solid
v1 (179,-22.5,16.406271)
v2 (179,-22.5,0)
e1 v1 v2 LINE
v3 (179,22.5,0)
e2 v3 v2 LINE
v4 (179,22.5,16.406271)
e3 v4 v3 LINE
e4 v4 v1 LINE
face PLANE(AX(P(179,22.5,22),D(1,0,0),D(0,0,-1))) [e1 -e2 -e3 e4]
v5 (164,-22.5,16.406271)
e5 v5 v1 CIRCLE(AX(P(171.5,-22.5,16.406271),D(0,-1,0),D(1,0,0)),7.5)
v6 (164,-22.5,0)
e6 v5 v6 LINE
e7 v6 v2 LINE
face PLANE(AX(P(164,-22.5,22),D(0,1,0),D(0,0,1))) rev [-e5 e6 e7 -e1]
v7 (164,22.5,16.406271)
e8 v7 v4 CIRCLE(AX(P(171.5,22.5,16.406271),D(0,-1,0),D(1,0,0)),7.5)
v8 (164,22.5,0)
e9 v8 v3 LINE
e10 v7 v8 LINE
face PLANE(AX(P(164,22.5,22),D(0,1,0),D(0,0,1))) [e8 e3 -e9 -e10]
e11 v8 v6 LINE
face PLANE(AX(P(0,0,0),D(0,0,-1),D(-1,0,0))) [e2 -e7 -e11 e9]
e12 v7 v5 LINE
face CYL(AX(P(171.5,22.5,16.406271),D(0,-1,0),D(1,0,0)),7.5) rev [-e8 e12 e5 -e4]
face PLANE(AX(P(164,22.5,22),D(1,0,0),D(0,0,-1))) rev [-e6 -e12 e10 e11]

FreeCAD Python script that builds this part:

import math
import FreeCAD as App
import Part
import Sketcher
Q = App.Units.Quantity

doc = App.newDocument("Part")
body = doc.addObject("PartDesign::Body", "Body")

# Sketch on XY plane
sketch1 = doc.addObject("Sketcher::SketchObject", "Sketch")
body.addObject(sketch1)
sketch1.AttachmentSupport = (doc.XY_Plane, [""])
sketch1.MapMode = "FlatFace"
sketch1.addGeometry(Part.LineSegment(App.Vector(164, 22, 0), App.Vector(164, -22, 0)), False)
sketch1.addGeometry(Part.LineSegment(App.Vector(164, -22, 0), App.Vector(179, -22, 0)), False)
sketch1.addGeometry(Part.LineSegment(App.Vector(179, -22, 0), App.Vector(179, 22, 0)), False)
sketch1.addGeometry(Part.LineSegment(App.Vector(179, 22, 0), App.Vector(164, 22, 0)), False)
sketch1.addConstraint(Sketcher.Constraint("Coincident", 0, 2, 1, 1))
sketch1.addConstraint(Sketcher.Constraint("Coincident", 1, 2, 2, 1))
sketch1.addConstraint(Sketcher.Constraint("Coincident", 2, 2, 3, 1))
sketch1.addConstraint(Sketcher.Constraint("Coincident", 3, 2, 0, 1))
sketch1.addConstraint(Sketcher.Constraint("Vertical", 0))
sketch1.addConstraint(Sketcher.Constraint("Horizontal", 1))
sketch1.addConstraint(Sketcher.Constraint("Vertical", 2))
sketch1.addConstraint(Sketcher.Constraint("Horizontal", 3))
sketch1.addConstraint(Sketcher.Constraint("DistanceX", 1, 1, 1, 2, Q("15 mm")))
sketch1.addConstraint(Sketcher.Constraint("DistanceY", 0, 2, 0, 1, Q("45 mm")))
sketch1.addConstraint(Sketcher.Constraint("DistanceX", -1, 1, 0, 2, Q("164 mm")))
sketch1.addConstraint(Sketcher.Constraint("DistanceY", 0, 2, -1, 1, Q("22.5 mm")))
pad1 = doc.addObject("PartDesign::Pad", "Pad")
body.addObject(pad1)
pad1.Profile = sketch1
pad1.Length = 22

# Sketch on XZ plane
sketch2 = doc.addObject("Sketcher::SketchObject", "Sketch001")
body.addObject(sketch2)
sketch2.AttachmentSupport = (doc.XZ_Plane, [""])
sketch2.MapMode = "FlatFace"
sketch2.AttachmentOffset = App.Placement(App.Vector(0, 0, 22.5), App.Rotation())
sketch2.addGeometry(Part.ArcOfCircle(Part.Circle(App.Vector(171.5, 16.4, 0), App.Vector(0, 0, 1), 7.5), math.radians(180), math.radians(360)), False)
sketch2.addGeometry(Part.LineSegment(App.Vector(179, 16.4, 0), App.Vector(179, 22, 0)), False)
sketch2.addGeometry(Part.LineSegment(App.Vector(179, 22, 0), App.Vector(176.5, 22, 0)), False)
sketch2.addGeometry(Part.ArcOfCircle(Part.Circle(App.Vector(171.5, 16.4, 0), App.Vector(0, 0, 1), 7.5), math.radians(48), math.radians(132)), False)
sketch2.addGeometry(Part.LineSegment(App.Vector(166.5, 22, 0), App.Vector(164, 22, 0)), False)
sketch2.addGeometry(Part.LineSegment(App.Vector(164, 22, 0), App.Vector(164, 16.4, 0)), False)
sketch2.addConstraint(Sketcher.Constraint("Tangent", 0, 2, 1, 1))
sketch2.addConstraint(Sketcher.Constraint("Coincident", 1, 2, 2, 1))
sketch2.addConstraint(Sketcher.Constraint("Coincident", 2, 2, 3, 1))
sketch2.addConstraint(Sketcher.Constraint("Coincident", 3, 2, 4, 1))
sketch2.addConstraint(Sketcher.Constraint("Coincident", 4, 2, 5, 1))
sketch2.addConstraint(Sketcher.Constraint("Tangent", 5, 2, 0, 1))
sketch2.addConstraint(Sketcher.Constraint("Vertical", 1))
sketch2.addConstraint(Sketcher.Constraint("Horizontal", 2))
sketch2.addConstraint(Sketcher.Constraint("Horizontal", 4))
sketch2.addConstraint(Sketcher.Constraint("Vertical", 5))
sketch2.addConstraint(Sketcher.Constraint("Coincident", 3, 3, 0, 3))
sketch2.addConstraint(Sketcher.Constraint("Equal", 0, 3))
sketch2.addConstraint(Sketcher.Constraint("Horizontal", 2, 2, 3, 2))
sketch2.addConstraint(Sketcher.Constraint("Radius", 0, Q("7.5 mm")))
sketch2.addConstraint(Sketcher.Constraint("DistanceX", -1, 1, 0, 2, Q("179 mm")))
sketch2.addConstraint(Sketcher.Constraint("DistanceY", -1, 1, 1, 2, Q("22 mm")))
sketch2.addConstraint(Sketcher.Constraint("DistanceY", 1, 1, 1, 2, Q("5.593729 mm")))
pocket1 = doc.addObject("PartDesign::Pocket", "Pocket")
body.addObject(pocket1)
pocket1.Profile = sketch2
pocket1.Type = "ThroughAll"

doc.recompute()
